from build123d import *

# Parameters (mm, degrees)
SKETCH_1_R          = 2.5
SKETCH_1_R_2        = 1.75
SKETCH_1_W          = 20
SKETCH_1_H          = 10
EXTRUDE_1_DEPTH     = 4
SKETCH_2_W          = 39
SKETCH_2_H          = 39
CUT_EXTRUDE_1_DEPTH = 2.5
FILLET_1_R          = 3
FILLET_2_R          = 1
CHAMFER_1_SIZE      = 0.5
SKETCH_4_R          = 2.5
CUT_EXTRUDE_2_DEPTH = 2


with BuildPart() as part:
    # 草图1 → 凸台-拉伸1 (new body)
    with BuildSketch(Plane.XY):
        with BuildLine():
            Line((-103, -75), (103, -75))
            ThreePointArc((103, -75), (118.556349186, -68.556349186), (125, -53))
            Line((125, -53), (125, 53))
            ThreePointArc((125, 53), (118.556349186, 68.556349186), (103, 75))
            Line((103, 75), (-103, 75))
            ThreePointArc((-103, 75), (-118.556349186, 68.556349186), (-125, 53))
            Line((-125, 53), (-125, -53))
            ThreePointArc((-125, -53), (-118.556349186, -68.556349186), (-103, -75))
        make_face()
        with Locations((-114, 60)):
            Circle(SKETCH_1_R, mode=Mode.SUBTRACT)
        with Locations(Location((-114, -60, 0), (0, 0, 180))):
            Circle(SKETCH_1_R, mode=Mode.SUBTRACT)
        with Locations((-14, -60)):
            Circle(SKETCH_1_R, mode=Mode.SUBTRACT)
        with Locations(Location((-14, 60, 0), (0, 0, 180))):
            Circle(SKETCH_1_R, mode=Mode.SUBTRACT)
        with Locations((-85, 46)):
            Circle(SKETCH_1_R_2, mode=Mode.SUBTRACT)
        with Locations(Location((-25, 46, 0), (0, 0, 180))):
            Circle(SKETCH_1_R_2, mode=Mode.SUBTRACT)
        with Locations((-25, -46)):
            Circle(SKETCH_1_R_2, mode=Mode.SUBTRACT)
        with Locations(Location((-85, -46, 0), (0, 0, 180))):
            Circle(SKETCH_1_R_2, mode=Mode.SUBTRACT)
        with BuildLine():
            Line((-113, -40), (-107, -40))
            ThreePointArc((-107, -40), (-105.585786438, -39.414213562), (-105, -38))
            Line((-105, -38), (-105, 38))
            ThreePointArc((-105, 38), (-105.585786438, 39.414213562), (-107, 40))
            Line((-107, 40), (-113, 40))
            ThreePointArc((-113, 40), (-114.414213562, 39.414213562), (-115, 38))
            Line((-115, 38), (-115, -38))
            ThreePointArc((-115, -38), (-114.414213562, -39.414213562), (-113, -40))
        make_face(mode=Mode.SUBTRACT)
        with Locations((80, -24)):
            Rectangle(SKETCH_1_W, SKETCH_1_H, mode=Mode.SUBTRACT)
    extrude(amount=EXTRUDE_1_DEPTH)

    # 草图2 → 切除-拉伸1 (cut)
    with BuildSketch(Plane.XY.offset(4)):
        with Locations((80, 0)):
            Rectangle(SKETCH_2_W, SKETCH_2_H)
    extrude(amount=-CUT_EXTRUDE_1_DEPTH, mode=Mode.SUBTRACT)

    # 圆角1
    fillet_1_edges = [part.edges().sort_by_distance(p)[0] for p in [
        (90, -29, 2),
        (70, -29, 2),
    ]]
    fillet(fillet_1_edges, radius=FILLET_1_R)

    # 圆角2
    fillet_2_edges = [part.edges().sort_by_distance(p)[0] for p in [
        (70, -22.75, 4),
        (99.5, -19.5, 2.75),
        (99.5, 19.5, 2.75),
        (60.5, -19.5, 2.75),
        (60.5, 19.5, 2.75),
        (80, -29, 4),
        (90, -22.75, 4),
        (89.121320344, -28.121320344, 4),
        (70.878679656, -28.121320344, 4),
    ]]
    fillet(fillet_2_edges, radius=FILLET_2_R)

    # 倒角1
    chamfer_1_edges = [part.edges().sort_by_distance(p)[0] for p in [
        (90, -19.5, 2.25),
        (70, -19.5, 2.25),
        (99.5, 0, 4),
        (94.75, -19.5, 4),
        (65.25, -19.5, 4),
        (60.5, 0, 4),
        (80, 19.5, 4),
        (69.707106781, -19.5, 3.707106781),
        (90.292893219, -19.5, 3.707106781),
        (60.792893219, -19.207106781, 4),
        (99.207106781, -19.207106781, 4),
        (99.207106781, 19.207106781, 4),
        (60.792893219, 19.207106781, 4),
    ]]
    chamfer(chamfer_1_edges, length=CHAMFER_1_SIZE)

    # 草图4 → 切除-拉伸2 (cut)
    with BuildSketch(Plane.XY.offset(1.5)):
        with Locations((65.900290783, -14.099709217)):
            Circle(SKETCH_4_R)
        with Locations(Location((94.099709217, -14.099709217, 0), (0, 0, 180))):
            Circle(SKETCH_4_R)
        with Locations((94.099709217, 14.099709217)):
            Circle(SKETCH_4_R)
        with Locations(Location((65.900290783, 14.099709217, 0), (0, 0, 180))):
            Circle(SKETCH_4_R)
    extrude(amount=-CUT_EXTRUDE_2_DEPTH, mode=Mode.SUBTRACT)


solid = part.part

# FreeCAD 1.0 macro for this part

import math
import FreeCAD as App
import Part
import Sketcher

V = App.Vector


def edges_at(feature, points):
    """Names of the edges that pass closest to the given points."""
    edges = feature.Shape.Edges
    near = lambda p: min(range(len(edges)), key=lambda i: edges[i].distToShape(Part.Vertex(*p))[0])
    return sorted({f"Edge{near(p) + 1}" for p in points})


def add_polygon(sketch, points):
    """Adds a closed chain of lines whose ends are joined by coincident constraints."""
    first, n = sketch.GeometryCount, len(points)
    for a, b in zip(points, points[1:] + points[:1]):
        sketch.addGeometry(Part.LineSegment(App.Vector(*a, 0), App.Vector(*b, 0)), False)
    for i in range(n):
        sketch.addConstraint(Sketcher.Constraint("Coincident", first + i, 2, first + (i + 1) % n, 1))

doc = App.newDocument("Part")
body = doc.addObject("PartDesign::Body", "Body")

# Sketch on XY plane
sketch1 = body.newObject("Sketcher::SketchObject", "Sketch")
sketch1.AttachmentSupport = (doc.getObject("XY_Plane"), [""])
sketch1.MapMode = "FlatFace"
sketch1.addGeometry(Part.LineSegment(V(-103, -75, 0), V(103, -75, 0)), False)  # 0
sketch1.addGeometry(Part.ArcOfCircle(Part.Circle(V(103, -53, 0), V(0, 0, 1), 22), math.radians(-90), math.radians(0)), False)  # 1
sketch1.addGeometry(Part.LineSegment(V(125, -53, 0), V(125, 53, 0)), False)  # 2
sketch1.addGeometry(Part.ArcOfCircle(Part.Circle(V(103, 53, 0), V(0, 0, 1), 22), math.radians(0), math.radians(90)), False)  # 3
sketch1.addGeometry(Part.LineSegment(V(103, 75, 0), V(-103, 75, 0)), False)  # 4
sketch1.addGeometry(Part.ArcOfCircle(Part.Circle(V(-103, 53, 0), V(0, 0, 1), 22), math.radians(90), math.radians(180)), False)  # 5
sketch1.addGeometry(Part.LineSegment(V(-125, 53, 0), V(-125, -53, 0)), False)  # 6
sketch1.addGeometry(Part.ArcOfCircle(Part.Circle(V(-103, -53, 0), V(0, 0, 1), 22), math.radians(180), math.radians(270)), False)  # 7
sketch1.addGeometry(Part.Circle(V(-114, -60, 0), V(0, 0, 1), 2.5), False)  # 8
sketch1.addGeometry(Part.Circle(V(-85, -46, 0), V(0, 0, 1), 1.8), False)  # 9
sketch1.addGeometry(Part.Circle(V(-14, -60, 0), V(0, 0, 1), 2.5), False)  # 10
sketch1.addGeometry(Part.Circle(V(-25, -46, 0), V(0, 0, 1), 1.8), False)  # 11
add_polygon(sketch1, [(90, -29), (70, -29), (70, -19), (90, -19)])  # lines 12-15
sketch1.addGeometry(Part.LineSegment(V(-107, -40, 0), V(-113, -40, 0)), False)  # 16
sketch1.addGeometry(Part.ArcOfCircle(Part.Circle(V(-113, -38, 0), V(0, 0, 1), 2), math.radians(-180), math.radians(-90)), False)  # 17
sketch1.addGeometry(Part.LineSegment(V(-115, -38, 0), V(-115, 38, 0)), False)  # 18
sketch1.addGeometry(Part.ArcOfCircle(Part.Circle(V(-113, 38, 0), V(0, 0, 1), 2), math.radians(90), math.radians(180)), False)  # 19
sketch1.addGeometry(Part.LineSegment(V(-113, 40, 0), V(-107, 40, 0)), False)  # 20
sketch1.addGeometry(Part.ArcOfCircle(Part.Circle(V(-107, 38, 0), V(0, 0, 1), 2), math.radians(0), math.radians(90)), False)  # 21
sketch1.addGeometry(Part.LineSegment(V(-105, 38, 0), V(-105, -38, 0)), False)  # 22
sketch1.addGeometry(Part.ArcOfCircle(Part.Circle(V(-107, -38, 0), V(0, 0, 1), 2), math.radians(-90), math.radians(0)), False)  # 23
sketch1.addGeometry(Part.Circle(V(-85, 46, 0), V(0, 0, 1), 1.8), False)  # 24
sketch1.addGeometry(Part.Circle(V(-114, 60, 0), V(0, 0, 1), 2.5), False)  # 25
sketch1.addGeometry(Part.Circle(V(-25, 46, 0), V(0, 0, 1), 1.8), False)  # 26
sketch1.addGeometry(Part.Circle(V(-14, 60, 0), V(0, 0, 1), 2.5), False)  # 27
sketch1.addConstraint([
    Sketcher.Constraint("Tangent", 0, 2, 1, 1),
    Sketcher.Constraint("Tangent", 1, 2, 2, 1),
    Sketcher.Constraint("Tangent", 2, 2, 3, 1),
    Sketcher.Constraint("Tangent", 3, 2, 4, 1),
    Sketcher.Constraint("Tangent", 4, 2, 5, 1),
    Sketcher.Constraint("Tangent", 5, 2, 6, 1),
    Sketcher.Constraint("Tangent", 6, 2, 7, 1),
    Sketcher.Constraint("Tangent", 7, 2, 0, 1),
    Sketcher.Constraint("Tangent", 16, 2, 17, 2),
    Sketcher.Constraint("Tangent", 17, 1, 18, 1),
    Sketcher.Constraint("Tangent", 18, 2, 19, 2),
    Sketcher.Constraint("Tangent", 19, 1, 20, 1),
    Sketcher.Constraint("Tangent", 20, 2, 21, 2),
    Sketcher.Constraint("Tangent", 21, 1, 22, 1),
    Sketcher.Constraint("Tangent", 22, 2, 23, 2),
    Sketcher.Constraint("Tangent", 23, 1, 16, 1),
    Sketcher.Constraint("Horizontal", 0),
    Sketcher.Constraint("Vertical", 2),
    Sketcher.Constraint("Horizontal", 4),
    Sketcher.Constraint("Vertical", 6),
    Sketcher.Constraint("Horizontal", 12),
    Sketcher.Constraint("Vertical", 13),
    Sketcher.Constraint("Horizontal", 14),
    Sketcher.Constraint("Vertical", 15),
    Sketcher.Constraint("Horizontal", 16),
    Sketcher.Constraint("Vertical", 18),
    Sketcher.Constraint("Horizontal", 20),
    Sketcher.Constraint("Vertical", 22),
    Sketcher.Constraint("Equal", 1, 3),
    Sketcher.Constraint("Equal", 3, 5),
    Sketcher.Constraint("Equal", 5, 7),
    Sketcher.Constraint("Equal", 8, 10),
    Sketcher.Constraint("Equal", 9, 11),
    Sketcher.Constraint("Equal", 17, 19),
    Sketcher.Constraint("Equal", 19, 21),
    Sketcher.Constraint("Equal", 21, 23),
    Sketcher.Constraint("Equal", 11, 24),
    Sketcher.Constraint("Equal", 10, 25),
    Sketcher.Constraint("Equal", 24, 26),
    Sketcher.Constraint("Equal", 25, 27),
    Sketcher.Constraint("Symmetric", 1, 3, 5, 3, -1, 1),
    Sketcher.Constraint("Symmetric", 9, 3, 24, 3, -1),
    Sketcher.Constraint("Symmetric", 8, 3, 25, 3, -1),
    Sketcher.Constraint("Symmetric", 11, 3, 26, 3, -1),
    Sketcher.Constraint("Symmetric", 10, 3, 27, 3, -1),
    Sketcher.Constraint("Horizontal", 8, 3, 10, 3),
    Sketcher.Constraint("Horizontal", 9, 3, 11, 3),
    Sketcher.Constraint("Diameter", 8, 5.0),
    Sketcher.Constraint("Radius", 1, 22.0),
    Sketcher.Constraint("Radius", 17, 2.0),
    Sketcher.Constraint("Diameter", 9, 3.5),
    Sketcher.Constraint("DistanceX", 0, 1, 0, 2, 206.0),
    Sketcher.Constraint("DistanceX", 12, 2, 12, 1, 20.0),
    Sketcher.Constraint("DistanceX", 16, 2, 16, 1, 6.0),
    Sketcher.Constraint("DistanceY", 2, 1, 2, 2, 106.0),
    Sketcher.Constraint("DistanceY", 13, 1, 13, 2, 10.0),
    Sketcher.Constraint("DistanceY", 18, 1, 18, 2, 76.0),
    Sketcher.Constraint("DistanceX", 8, 3, -1, 1, 114.0),
    Sketcher.Constraint("DistanceY", 8, 3, -1, 1, 60.0),
    Sketcher.Constraint("DistanceX", 9, 3, -1, 1, 85.0),
    Sketcher.Constraint("DistanceY", 9, 3, -1, 1, 46.0),
    Sketcher.Constraint("DistanceX", 10, 3, -1, 1, 14.0),
    Sketcher.Constraint("DistanceX", 11, 3, -1, 1, 25.0),
    Sketcher.Constraint("DistanceX", 17, 3, -1, 1, 113.0),
    Sketcher.Constraint("DistanceY", 17, 3, -1, 1, 38.0),
    Sketcher.Constraint("DistanceX", -1, 1, 12, 2, 70.0),
    Sketcher.Constraint("DistanceY", 12, 2, -1, 1, 29.0),
])
pad1 = body.newObject("PartDesign::Pad", "Pad")
pad1.Profile = sketch1
pad1.Length = 4

# Sketch on XY plane
sketch2 = body.newObject("Sketcher::SketchObject", "Sketch001")
sketch2.AttachmentSupport = (doc.getObject("XY_Plane"), [""])
sketch2.MapMode = "FlatFace"
sketch2.AttachmentOffset = App.Placement(V(0, 0, 4), App.Rotation())
add_polygon(sketch2, [(60, 20), (60, -20), (100, -20), (100, 20)])  # lines 0-3
sketch2.addConstraint([
    Sketcher.Constraint("Vertical", 0),
    Sketcher.Constraint("Horizontal", 1),
    Sketcher.Constraint("Vertical", 2),
    Sketcher.Constraint("Horizontal", 3),
    Sketcher.Constraint("Equal", 3, 0),
    Sketcher.Constraint("DistanceX", 1, 1, 1, 2, 39.0),
    Sketcher.Constraint("DistanceX", -1, 1, 0, 2, 60.5),
    Sketcher.Constraint("DistanceY", 0, 2, -1, 1, 19.5),
])
pocket1 = body.newObject("PartDesign::Pocket", "Pocket")
pocket1.Profile = sketch2
pocket1.Length = 2.5
doc.recompute()

fillet = body.newObject("PartDesign::Fillet", "Fillet")
fillet.Base = (pocket1, edges_at(pocket1, [(90, -29, 2), (70, -29, 2)]))
fillet.Radius = 3
doc.recompute()

fillet2 = body.newObject("PartDesign::Fillet", "Fillet001")
fillet2.Base = (fillet, edges_at(fillet, [
    (70, -22.75, 4),
    (99.5, -19.5, 2.75),
    (99.5, 19.5, 2.75),
    (60.5, -19.5, 2.75),
    (60.5, 19.5, 2.75),
    (80, -29, 4),
    (90, -22.75, 4),
    (89.121, -28.121, 4),
    (70.879, -28.121, 4),
]))
fillet2.Radius = 1
doc.recompute()

chamfer = body.newObject("PartDesign::Chamfer", "Chamfer")
chamfer.Base = (fillet2, edges_at(fillet2, [
    (90, -19.5, 2.25),
    (70, -19.5, 2.25),
    (99.5, 0, 4),
    (94.75, -19.5, 4),
    (65.25, -19.5, 4),
    (60.5, 0, 4),
    (80, 19.5, 4),
    (69.707, -19.5, 3.707),
    (90.293, -19.5, 3.707),
    (60.793, -19.207, 4),
    (99.207, -19.207, 4),
    (99.207, 19.207, 4),
    (60.793, 19.207, 4),
]))
chamfer.Size = 0.5

# Sketch on XY plane
sketch3 = body.newObject("Sketcher::SketchObject", "Sketch002")
sketch3.AttachmentSupport = (doc.getObject("XY_Plane"), [""])
sketch3.MapMode = "FlatFace"
sketch3.AttachmentOffset = App.Placement(V(0, 0, 1.5), App.Rotation())
sketch3.addGeometry([
    Part.Circle(V(65.9, -14.1, 0), V(0, 0, 1), 2.5),
    Part.Circle(V(94.1, -14.1, 0), V(0, 0, 1), 2.5),
    Part.Circle(V(94.1, 14.1, 0), V(0, 0, 1), 2.5),
    Part.Circle(V(65.9, 14.1, 0), V(0, 0, 1), 2.5),
], False)
sketch3.addConstraint([
    Sketcher.Constraint("Equal", 0, 1),
    Sketcher.Constraint("Equal", 1, 2),
    Sketcher.Constraint("Equal", 2, 3),
    Sketcher.Constraint("Symmetric", 1, 3, 2, 3, -1),
    Sketcher.Constraint("Symmetric", 0, 3, 3, 3, -1),
    Sketcher.Constraint("Horizontal", 0, 3, 1, 3),
    Sketcher.Constraint("Diameter", 0, 5.0),
    Sketcher.Constraint("DistanceX", -1, 1, 0, 3, 65.900291),
    Sketcher.Constraint("DistanceY", 0, 3, -1, 1, 14.099709),
    Sketcher.Constraint("DistanceX", -1, 1, 1, 3, 94.099709),
])
pocket2 = body.newObject("PartDesign::Pocket", "Pocket001")
pocket2.Profile = sketch3
pocket2.Length = 2

doc.recompute()
